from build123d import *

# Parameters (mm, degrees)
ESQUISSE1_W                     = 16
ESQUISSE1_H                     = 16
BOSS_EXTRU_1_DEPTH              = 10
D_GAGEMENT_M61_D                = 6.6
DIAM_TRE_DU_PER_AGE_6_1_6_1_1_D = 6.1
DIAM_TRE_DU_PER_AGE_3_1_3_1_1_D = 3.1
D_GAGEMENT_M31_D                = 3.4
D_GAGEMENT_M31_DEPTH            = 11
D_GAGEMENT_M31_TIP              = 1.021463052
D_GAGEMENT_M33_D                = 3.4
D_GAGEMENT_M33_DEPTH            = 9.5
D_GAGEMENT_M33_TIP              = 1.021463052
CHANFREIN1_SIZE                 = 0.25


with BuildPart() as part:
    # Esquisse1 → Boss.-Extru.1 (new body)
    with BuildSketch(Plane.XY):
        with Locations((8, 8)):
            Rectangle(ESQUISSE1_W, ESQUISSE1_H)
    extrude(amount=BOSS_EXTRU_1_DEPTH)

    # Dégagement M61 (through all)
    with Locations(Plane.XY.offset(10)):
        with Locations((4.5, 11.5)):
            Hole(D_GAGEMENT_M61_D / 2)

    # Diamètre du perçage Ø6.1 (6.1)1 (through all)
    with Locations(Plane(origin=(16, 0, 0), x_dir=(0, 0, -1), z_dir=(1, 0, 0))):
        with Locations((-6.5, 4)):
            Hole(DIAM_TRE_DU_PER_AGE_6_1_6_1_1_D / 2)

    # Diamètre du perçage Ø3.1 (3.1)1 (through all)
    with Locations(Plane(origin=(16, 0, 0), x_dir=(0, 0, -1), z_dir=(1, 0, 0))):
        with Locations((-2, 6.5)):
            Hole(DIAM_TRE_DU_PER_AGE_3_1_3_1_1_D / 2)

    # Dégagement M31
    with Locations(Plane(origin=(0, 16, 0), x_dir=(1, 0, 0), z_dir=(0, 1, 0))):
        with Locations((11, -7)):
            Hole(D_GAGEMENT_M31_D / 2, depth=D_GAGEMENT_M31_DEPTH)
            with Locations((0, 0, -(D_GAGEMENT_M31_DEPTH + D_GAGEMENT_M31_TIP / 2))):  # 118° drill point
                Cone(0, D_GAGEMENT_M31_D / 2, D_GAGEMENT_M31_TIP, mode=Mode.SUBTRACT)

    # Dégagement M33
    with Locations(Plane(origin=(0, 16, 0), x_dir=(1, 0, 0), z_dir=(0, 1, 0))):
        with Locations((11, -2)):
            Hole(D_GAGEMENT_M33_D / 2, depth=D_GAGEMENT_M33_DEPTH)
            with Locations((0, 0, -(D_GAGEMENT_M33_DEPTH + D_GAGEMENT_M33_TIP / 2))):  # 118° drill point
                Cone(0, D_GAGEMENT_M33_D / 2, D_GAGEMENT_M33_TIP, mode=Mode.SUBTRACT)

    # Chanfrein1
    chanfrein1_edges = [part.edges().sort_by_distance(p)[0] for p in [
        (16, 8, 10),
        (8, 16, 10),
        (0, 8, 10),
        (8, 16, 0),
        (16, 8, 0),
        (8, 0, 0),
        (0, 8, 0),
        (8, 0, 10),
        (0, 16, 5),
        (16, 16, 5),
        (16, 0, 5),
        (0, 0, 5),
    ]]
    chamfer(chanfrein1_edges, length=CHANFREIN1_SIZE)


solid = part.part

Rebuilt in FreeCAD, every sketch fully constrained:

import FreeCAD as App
import Part
import Sketcher
from FreeCAD import Vector
Q = App.Units.Quantity


def edges_at(feature, points):
    """Names of the edges that pass closest to the given points."""
    edges = feature.Shape.Edges
    near = lambda p: min(range(len(edges)), key=lambda i: edges[i].distToShape(Part.Vertex(*p))[0])
    return sorted({f"Edge{near(p) + 1}" for p in points})

doc = App.newDocument("Part")
body = doc.addObject("PartDesign::Body", "Body")

sketch1 = body.newObject("Sketcher::SketchObject", "Sketch")
sketch1.AttachmentSupport = (doc.getObject("XY_Plane"), [""])
sketch1.MapMode = "FlatFace"
sketch1.addGeometry([
    Part.LineSegment(Vector(0, 16, 0), Vector(0, 0, 0)),
    Part.LineSegment(Vector(0, 0, 0), Vector(16, 0, 0)),
    Part.LineSegment(Vector(16, 0, 0), Vector(16, 16, 0)),
    Part.LineSegment(Vector(16, 16, 0), Vector(0, 16, 0)),
], False)
sketch1.addConstraint([
    Sketcher.Constraint("Coincident", 0, 2, 1, 1),
    Sketcher.Constraint("Coincident", 1, 2, 2, 1),
    Sketcher.Constraint("Coincident", 2, 2, 3, 1),
    Sketcher.Constraint("Coincident", 3, 2, 0, 1),
    Sketcher.Constraint("Vertical", 0),
    Sketcher.Constraint("Horizontal", 1),
    Sketcher.Constraint("Vertical", 2),
    Sketcher.Constraint("Horizontal", 3),
    Sketcher.Constraint("Coincident", 0, 2, -1, 1),
    Sketcher.Constraint("Equal", 3, 0),
    Sketcher.Constraint("DistanceX", 1, 1, 1, 2, Q("16 mm")),
])
pad1 = body.newObject("PartDesign::Pad", "Pad")
pad1.Profile = sketch1
pad1.Length = 10

sketch2 = body.newObject("Sketcher::SketchObject", "Sketch001")
sketch2.AttachmentSupport = (doc.getObject("XY_Plane"), [""])
sketch2.MapMode = "FlatFace"
sketch2.AttachmentOffset = App.Placement(Vector(0, 0, 10), App.Rotation())
sketch2.addGeometry(Part.Circle(Vector(4.5, 11.5, 0), Vector(0, 0, 1), 3.3), False)
sketch2.addConstraint([
    Sketcher.Constraint("Diameter", 0, Q("6.6 mm")),
    Sketcher.Constraint("DistanceX", -1, 1, 0, 3, Q("4.5 mm")),
    Sketcher.Constraint("DistanceY", -1, 1, 0, 3, Q("11.5 mm")),
])
doc.recompute()
hole = body.newObject("PartDesign::Hole", "Hole")
hole.Profile = sketch2
hole.ThreadType = "None"
hole.Diameter = 6.6
hole.DepthType = "ThroughAll"

sketch3 = body.newObject("Sketcher::SketchObject", "Sketch002")
sketch3.AttachmentSupport = (doc.getObject("YZ_Plane"), [""])
sketch3.MapMode = "FlatFace"
sketch3.AttachmentOffset = App.Placement(Vector(0, 0, 16), App.Rotation())
sketch3.addGeometry(Part.Circle(Vector(4, 6.5, 0), Vector(0, 0, 1), 3.05), False)
sketch3.addConstraint([
    Sketcher.Constraint("Diameter", 0, Q("6.1 mm")),
    Sketcher.Constraint("DistanceX", -1, 1, 0, 3, Q("4 mm")),
    Sketcher.Constraint("DistanceY", -1, 1, 0, 3, Q("6.5 mm")),
])
doc.recompute()
hole2 = body.newObject("PartDesign::Hole", "Hole001")
hole2.Profile = sketch3
hole2.ThreadType = "None"
hole2.Diameter = 6.1
hole2.DepthType = "ThroughAll"

sketch4 = body.newObject("Sketcher::SketchObject", "Sketch003")
sketch4.AttachmentSupport = (doc.getObject("YZ_Plane"), [""])
sketch4.MapMode = "FlatFace"
sketch4.AttachmentOffset = App.Placement(Vector(0, 0, 16), App.Rotation())
sketch4.addGeometry(Part.Circle(Vector(6.5, 2, 0), Vector(0, 0, 1), 1.55), False)
sketch4.addConstraint([
    Sketcher.Constraint("Diameter", 0, Q("3.1 mm")),
    Sketcher.Constraint("DistanceY", -1, 1, 0, 3, Q("2 mm")),
    Sketcher.Constraint("DistanceX", -1, 1, 0, 3, Q("6.5 mm")),
])
doc.recompute()
hole3 = body.newObject("PartDesign::Hole", "Hole002")
hole3.Profile = sketch4
hole3.ThreadType = "None"
hole3.Diameter = 3.1
hole3.DepthType = "ThroughAll"

sketch5 = body.newObject("Sketcher::SketchObject", "Sketch004")
sketch5.AttachmentSupport = (doc.getObject("XZ_Plane"), [""])
sketch5.MapMode = "FlatFace"
sketch5.AttachmentOffset = App.Placement(Vector(0, 0, -16), App.Rotation())
sketch5.addGeometry(Part.Circle(Vector(11, 7, 0), Vector(0, 0, 1), 1.7), False)
sketch5.addConstraint([
    Sketcher.Constraint("Diameter", 0, Q("3.4 mm")),
    Sketcher.Constraint("DistanceX", -1, 1, 0, 3, Q("11 mm")),
    Sketcher.Constraint("DistanceY", -1, 1, 0, 3, Q("7 mm")),
])
doc.recompute()
hole4 = body.newObject("PartDesign::Hole", "Hole003")
hole4.Profile = sketch5
hole4.ThreadType = "None"
hole4.Diameter = 3.4
hole4.DepthType = "Dimension"
hole4.Depth = 11
hole4.DrillPoint = "Angled"
hole4.DrillPointAngle = 118
hole4.Reversed = True

sketch6 = body.newObject("Sketcher::SketchObject", "Sketch005")
sketch6.AttachmentSupport = (doc.getObject("XZ_Plane"), [""])
sketch6.MapMode = "FlatFace"
sketch6.AttachmentOffset = App.Placement(Vector(0, 0, -16), App.Rotation())
sketch6.addGeometry(Part.Circle(Vector(11, 2, 0), Vector(0, 0, 1), 1.7), False)
sketch6.addConstraint([
    Sketcher.Constraint("Diameter", 0, Q("3.4 mm")),
    Sketcher.Constraint("DistanceX", -1, 1, 0, 3, Q("11 mm")),
    Sketcher.Constraint("DistanceY", -1, 1, 0, 3, Q("2 mm")),
])
doc.recompute()
hole5 = body.newObject("PartDesign::Hole", "Hole004")
hole5.Profile = sketch6
hole5.ThreadType = "None"
hole5.Diameter = 3.4
hole5.DepthType = "Dimension"
hole5.Depth = 9.5
hole5.DrillPoint = "Angled"
hole5.DrillPointAngle = 118
hole5.Reversed = True
doc.recompute()

chamfer = body.newObject("PartDesign::Chamfer", "Chamfer")
chamfer.Base = (hole5, edges_at(hole5, [
    (16, 8, 10),
    (8, 16, 10),
    (0, 8, 10),
    (8, 16, 0),
    (16, 8, 0),
    (8, 0, 0),
    (0, 8, 0),
    (8, 0, 10),
    (0, 16, 5),
    (16, 16, 5),
    (16, 0, 5),
    (0, 0, 5),
]))
chamfer.Size = 0.25

doc.recompute()
